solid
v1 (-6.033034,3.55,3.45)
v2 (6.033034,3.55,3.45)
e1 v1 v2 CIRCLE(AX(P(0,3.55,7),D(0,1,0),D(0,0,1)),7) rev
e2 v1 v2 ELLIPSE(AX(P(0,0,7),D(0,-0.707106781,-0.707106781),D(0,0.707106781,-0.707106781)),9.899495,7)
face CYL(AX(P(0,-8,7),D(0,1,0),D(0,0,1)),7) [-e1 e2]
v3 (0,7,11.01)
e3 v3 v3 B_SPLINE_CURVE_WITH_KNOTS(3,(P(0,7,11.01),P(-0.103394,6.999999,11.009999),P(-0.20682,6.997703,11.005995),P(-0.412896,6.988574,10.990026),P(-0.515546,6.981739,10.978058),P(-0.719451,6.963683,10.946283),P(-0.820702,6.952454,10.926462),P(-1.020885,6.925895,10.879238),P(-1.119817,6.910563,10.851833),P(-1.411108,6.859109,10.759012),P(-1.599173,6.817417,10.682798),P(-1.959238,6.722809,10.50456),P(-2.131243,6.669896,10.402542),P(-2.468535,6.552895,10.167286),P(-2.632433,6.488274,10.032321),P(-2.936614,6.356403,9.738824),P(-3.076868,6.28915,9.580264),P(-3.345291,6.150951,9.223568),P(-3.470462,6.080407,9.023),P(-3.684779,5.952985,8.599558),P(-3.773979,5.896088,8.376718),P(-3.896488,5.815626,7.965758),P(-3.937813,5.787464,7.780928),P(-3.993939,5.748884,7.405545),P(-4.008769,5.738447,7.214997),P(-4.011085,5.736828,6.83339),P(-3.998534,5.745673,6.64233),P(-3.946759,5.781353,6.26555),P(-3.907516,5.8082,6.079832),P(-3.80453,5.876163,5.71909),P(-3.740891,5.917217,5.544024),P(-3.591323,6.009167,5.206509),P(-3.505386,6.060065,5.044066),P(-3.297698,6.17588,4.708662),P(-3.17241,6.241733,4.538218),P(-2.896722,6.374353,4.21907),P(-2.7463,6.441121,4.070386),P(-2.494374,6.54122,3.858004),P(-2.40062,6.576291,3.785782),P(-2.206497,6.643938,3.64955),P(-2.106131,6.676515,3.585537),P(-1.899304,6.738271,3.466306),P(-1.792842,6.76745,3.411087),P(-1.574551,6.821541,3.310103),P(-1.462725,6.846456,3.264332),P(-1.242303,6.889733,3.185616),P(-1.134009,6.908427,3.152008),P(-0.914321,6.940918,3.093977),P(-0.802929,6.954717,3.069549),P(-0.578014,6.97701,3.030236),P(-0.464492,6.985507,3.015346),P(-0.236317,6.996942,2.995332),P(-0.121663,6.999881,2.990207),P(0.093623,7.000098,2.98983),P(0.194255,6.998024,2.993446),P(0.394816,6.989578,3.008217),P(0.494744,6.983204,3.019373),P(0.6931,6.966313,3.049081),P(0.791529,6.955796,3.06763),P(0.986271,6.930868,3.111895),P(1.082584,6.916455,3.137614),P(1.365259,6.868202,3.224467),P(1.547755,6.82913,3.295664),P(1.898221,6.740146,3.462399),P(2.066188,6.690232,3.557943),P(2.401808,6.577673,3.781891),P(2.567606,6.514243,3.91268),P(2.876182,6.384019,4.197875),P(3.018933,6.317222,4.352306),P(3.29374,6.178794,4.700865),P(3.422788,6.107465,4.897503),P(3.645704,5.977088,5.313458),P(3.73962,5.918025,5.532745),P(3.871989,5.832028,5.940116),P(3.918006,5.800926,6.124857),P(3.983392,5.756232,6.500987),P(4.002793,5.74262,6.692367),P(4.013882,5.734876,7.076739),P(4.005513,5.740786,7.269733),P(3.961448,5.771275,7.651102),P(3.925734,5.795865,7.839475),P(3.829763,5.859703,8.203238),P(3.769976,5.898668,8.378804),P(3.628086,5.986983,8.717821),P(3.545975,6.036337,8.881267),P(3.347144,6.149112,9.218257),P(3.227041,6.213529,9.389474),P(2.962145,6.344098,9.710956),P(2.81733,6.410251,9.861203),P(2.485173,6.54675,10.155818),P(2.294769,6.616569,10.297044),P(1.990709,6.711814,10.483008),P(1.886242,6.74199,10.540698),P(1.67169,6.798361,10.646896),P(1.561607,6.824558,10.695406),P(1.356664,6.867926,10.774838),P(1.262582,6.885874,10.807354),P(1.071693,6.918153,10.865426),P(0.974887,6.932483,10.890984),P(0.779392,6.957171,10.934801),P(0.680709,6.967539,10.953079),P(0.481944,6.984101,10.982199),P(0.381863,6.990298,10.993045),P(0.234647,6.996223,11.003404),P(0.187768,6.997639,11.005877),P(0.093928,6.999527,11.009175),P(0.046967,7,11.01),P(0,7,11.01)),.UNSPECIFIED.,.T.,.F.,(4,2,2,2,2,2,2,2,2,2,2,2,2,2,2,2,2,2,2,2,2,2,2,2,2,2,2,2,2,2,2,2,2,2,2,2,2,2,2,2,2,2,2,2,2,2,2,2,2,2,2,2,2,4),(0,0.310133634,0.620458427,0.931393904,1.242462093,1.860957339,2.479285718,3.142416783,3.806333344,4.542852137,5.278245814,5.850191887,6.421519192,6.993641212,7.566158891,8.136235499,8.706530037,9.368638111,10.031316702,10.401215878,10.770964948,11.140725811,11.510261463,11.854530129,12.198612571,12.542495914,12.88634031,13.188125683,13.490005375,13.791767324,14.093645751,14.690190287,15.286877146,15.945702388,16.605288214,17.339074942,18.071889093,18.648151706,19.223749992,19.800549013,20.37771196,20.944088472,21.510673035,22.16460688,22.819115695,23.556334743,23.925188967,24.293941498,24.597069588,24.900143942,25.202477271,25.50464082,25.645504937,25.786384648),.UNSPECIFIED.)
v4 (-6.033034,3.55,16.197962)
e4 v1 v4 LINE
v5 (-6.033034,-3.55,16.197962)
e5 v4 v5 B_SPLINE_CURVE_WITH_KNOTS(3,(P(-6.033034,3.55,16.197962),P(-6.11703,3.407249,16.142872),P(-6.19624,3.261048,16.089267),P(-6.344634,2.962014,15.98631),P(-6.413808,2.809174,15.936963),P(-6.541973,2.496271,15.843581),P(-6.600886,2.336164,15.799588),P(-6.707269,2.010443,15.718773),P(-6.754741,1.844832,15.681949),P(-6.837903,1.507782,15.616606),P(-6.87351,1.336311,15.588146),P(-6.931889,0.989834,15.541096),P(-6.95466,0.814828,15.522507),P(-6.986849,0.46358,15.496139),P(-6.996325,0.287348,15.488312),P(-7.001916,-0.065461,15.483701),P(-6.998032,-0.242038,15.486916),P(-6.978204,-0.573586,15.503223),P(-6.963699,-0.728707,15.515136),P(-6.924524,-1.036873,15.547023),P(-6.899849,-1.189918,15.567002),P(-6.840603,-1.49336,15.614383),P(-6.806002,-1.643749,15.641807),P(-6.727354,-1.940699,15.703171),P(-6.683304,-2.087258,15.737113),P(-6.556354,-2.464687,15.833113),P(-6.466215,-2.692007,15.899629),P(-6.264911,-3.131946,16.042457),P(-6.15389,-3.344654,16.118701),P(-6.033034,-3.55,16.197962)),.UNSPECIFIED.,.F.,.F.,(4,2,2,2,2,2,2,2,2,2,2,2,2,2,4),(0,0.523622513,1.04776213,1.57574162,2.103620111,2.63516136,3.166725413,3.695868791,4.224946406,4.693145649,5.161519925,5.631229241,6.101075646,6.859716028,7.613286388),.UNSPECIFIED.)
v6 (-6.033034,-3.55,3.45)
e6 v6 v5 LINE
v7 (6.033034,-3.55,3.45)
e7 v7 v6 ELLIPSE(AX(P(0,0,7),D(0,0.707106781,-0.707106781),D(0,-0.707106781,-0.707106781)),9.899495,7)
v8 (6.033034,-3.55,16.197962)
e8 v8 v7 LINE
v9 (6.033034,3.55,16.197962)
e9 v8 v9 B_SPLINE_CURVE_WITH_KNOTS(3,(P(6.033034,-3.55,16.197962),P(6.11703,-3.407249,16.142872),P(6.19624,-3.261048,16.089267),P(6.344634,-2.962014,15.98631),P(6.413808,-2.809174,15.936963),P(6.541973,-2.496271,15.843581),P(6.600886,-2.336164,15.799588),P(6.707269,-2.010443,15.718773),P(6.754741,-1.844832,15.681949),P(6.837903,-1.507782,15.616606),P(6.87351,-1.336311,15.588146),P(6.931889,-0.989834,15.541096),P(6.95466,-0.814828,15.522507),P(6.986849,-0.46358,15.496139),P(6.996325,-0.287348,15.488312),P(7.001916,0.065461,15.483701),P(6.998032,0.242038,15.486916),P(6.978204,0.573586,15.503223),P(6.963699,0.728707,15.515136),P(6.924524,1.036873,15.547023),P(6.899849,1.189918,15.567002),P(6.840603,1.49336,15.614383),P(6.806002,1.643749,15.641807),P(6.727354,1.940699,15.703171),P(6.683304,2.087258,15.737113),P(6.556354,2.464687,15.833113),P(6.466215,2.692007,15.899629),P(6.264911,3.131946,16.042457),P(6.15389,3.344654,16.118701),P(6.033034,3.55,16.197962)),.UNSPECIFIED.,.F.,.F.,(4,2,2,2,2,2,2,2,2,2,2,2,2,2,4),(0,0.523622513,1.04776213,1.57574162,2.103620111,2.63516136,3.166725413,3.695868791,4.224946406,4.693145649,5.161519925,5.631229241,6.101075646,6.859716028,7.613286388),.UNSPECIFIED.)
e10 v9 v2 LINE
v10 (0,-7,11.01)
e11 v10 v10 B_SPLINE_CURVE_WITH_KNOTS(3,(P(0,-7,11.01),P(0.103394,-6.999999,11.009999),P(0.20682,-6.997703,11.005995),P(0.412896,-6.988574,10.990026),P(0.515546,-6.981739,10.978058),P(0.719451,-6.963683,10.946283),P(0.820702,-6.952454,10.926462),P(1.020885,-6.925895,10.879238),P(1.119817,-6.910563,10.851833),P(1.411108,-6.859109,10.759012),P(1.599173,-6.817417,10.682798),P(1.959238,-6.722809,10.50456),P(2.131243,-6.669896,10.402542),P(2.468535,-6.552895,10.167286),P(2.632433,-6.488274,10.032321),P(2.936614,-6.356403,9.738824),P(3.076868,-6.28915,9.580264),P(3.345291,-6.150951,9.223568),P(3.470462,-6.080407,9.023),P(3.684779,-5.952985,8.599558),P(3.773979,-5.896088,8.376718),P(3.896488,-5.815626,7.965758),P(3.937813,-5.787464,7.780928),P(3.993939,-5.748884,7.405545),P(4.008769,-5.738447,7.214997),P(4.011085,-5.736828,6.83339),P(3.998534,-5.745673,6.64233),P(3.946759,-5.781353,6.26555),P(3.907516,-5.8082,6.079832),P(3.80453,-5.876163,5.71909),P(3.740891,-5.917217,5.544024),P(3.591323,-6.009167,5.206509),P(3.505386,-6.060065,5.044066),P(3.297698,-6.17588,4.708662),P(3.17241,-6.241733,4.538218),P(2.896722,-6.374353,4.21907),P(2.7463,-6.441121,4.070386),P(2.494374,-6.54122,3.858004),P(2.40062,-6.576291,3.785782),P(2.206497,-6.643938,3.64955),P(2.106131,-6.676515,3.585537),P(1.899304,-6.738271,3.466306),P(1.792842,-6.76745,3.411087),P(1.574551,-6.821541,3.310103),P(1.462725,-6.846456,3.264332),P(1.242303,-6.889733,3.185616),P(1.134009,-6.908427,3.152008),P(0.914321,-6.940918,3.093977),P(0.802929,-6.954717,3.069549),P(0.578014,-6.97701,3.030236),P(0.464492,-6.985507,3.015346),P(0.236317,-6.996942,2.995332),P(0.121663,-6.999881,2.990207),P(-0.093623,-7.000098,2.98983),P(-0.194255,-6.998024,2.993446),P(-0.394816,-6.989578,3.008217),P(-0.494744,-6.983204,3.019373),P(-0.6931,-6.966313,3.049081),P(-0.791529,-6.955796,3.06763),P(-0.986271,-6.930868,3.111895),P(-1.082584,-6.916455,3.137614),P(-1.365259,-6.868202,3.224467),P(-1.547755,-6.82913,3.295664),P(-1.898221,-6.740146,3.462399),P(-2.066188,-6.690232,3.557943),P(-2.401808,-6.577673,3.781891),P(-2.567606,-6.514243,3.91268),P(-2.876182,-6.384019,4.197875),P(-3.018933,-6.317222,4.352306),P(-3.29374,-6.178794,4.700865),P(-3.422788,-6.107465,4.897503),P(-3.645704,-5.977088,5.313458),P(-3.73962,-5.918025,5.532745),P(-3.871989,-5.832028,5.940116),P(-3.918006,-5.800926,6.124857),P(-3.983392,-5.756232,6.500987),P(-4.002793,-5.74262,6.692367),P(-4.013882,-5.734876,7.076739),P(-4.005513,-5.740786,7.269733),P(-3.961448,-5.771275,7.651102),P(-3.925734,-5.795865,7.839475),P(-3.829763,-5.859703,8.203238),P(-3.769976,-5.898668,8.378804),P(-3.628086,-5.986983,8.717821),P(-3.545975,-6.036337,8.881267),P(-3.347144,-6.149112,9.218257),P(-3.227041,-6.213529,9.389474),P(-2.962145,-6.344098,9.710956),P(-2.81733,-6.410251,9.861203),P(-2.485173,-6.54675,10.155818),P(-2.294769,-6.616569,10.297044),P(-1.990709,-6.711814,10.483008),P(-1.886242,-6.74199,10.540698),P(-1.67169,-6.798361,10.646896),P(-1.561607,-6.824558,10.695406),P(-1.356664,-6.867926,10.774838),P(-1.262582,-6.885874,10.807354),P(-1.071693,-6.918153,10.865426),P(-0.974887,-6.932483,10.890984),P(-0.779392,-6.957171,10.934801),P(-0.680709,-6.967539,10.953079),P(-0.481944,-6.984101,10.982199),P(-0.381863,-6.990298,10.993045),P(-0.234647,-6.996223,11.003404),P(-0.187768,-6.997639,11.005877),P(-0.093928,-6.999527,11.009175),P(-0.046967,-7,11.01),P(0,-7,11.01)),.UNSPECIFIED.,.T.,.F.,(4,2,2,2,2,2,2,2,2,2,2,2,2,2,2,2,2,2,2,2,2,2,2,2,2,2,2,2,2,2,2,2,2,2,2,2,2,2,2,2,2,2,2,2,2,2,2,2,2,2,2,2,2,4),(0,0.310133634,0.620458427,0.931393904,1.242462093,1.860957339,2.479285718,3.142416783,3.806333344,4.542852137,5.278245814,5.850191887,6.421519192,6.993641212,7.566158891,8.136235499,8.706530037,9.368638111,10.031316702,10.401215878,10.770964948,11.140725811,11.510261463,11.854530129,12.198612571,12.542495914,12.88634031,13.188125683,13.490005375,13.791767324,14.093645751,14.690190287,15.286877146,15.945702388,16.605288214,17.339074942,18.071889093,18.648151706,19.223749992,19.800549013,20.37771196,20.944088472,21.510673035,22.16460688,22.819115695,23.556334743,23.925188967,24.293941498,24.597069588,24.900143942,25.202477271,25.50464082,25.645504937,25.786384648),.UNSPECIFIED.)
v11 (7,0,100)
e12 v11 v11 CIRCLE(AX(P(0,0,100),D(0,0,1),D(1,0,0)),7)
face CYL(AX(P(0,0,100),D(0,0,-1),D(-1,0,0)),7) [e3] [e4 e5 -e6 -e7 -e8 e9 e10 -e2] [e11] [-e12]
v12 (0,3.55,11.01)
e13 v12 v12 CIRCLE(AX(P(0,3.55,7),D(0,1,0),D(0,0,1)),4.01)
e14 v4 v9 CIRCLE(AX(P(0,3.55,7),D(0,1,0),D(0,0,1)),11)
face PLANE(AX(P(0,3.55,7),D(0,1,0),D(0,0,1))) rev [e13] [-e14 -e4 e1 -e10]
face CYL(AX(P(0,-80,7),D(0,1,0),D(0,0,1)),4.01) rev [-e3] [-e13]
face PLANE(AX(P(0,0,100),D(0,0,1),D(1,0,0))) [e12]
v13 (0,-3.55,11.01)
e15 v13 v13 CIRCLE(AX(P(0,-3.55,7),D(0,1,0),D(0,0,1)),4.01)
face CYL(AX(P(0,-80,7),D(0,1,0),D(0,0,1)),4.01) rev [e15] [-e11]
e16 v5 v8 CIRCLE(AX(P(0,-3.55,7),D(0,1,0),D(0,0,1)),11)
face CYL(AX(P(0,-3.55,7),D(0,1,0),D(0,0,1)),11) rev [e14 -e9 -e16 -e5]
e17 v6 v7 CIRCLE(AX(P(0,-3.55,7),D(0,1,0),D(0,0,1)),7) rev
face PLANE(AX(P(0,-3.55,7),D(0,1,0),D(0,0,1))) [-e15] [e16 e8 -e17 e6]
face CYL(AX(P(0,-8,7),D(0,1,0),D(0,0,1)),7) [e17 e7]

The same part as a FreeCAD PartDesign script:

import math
import FreeCAD as App
import Part
import Sketcher
Q = App.Units.Quantity

doc = App.newDocument("Part")
body = doc.addObject("PartDesign::Body", "Body")

# Sketch on XY plane
sketch1 = body.newObject("Sketcher::SketchObject", "Sketch")
sketch1.AttachmentSupport = (doc.getObject("XY_Plane"), [""])
sketch1.MapMode = "FlatFace"
sketch1.addGeometry(Part.Circle(App.Vector(0, 0, 0), App.Vector(0, 0, 1), 7), False)
sketch1.addConstraint([
    Sketcher.Constraint("Coincident", 0, 3, -1, 1),
    Sketcher.Constraint("Diameter", 0, Q("14 mm")),
])
pad1 = body.newObject("PartDesign::Pad", "Pad")
pad1.Profile = sketch1
pad1.Length = 100

# Sketch on XZ plane
sketch2 = body.newObject("Sketcher::SketchObject", "Sketch001")
sketch2.AttachmentSupport = (doc.getObject("XZ_Plane"), [""])
sketch2.MapMode = "FlatFace"
sketch2.addGeometry([
    Part.ArcOfCircle(Part.Circle(App.Vector(0, 7, 0), App.Vector(0, 0, 1), 7), math.radians(180), math.radians(360)),
    Part.LineSegment(App.Vector(7, 7, 0), App.Vector(18, 7, 0)),
    Part.ArcOfCircle(Part.Circle(App.Vector(0, 7, 0), App.Vector(0, 0, 1), 18), math.radians(180), math.radians(360)),
    Part.LineSegment(App.Vector(-18, 7, 0), App.Vector(-7, 7, 0)),
], False)
sketch2.addConstraint([
    Sketcher.Constraint("Coincident", 0, 2, 1, 1),
    Sketcher.Constraint("Coincident", 1, 2, 2, 2),
    Sketcher.Constraint("Coincident", 2, 1, 3, 1),
    Sketcher.Constraint("Coincident", 3, 2, 0, 1),
    Sketcher.Constraint("Horizontal", 1),
    Sketcher.Constraint("Horizontal", 3),
    Sketcher.Constraint("Coincident", 2, 3, 0, 3),
    Sketcher.Constraint("Symmetric", 1, 2, 2, 1, -2),
    Sketcher.Constraint("Horizontal", 2, 3, 0, 2),
    Sketcher.Constraint("Radius", 0, Q("7 mm")),
    Sketcher.Constraint("DistanceY", -1, 1, 0, 3, Q("7 mm")),
    Sketcher.Constraint("Radius", 2, Q("17.530133 mm")),
])
pocket1 = body.newObject("PartDesign::Pocket", "Pocket")
pocket1.Profile = sketch2
pocket1.Length = 16
pocket1.Midplane = True

# Sketch on XZ plane
sketch3 = body.newObject("Sketcher::SketchObject", "Sketch002")
sketch3.AttachmentSupport = (doc.getObject("XZ_Plane"), [""])
sketch3.MapMode = "FlatFace"
sketch3.addGeometry(Part.Circle(App.Vector(0, 7, 0), App.Vector(0, 0, 1), 11), False)
sketch3.addConstraint([
    Sketcher.Constraint("PointOnObject", 0, 3, -2),
    Sketcher.Constraint("Diameter", 0, Q("22 mm")),
    Sketcher.Constraint("DistanceY", -1, 1, 0, 3, Q("7 mm")),
])
pocket2 = body.newObject("PartDesign::Pocket", "Pocket001")
pocket2.Profile = sketch3
pocket2.Length = 7.1
pocket2.Midplane = True

# Sketch on XZ plane
sketch4 = body.newObject("Sketcher::SketchObject", "Sketch003")
sketch4.AttachmentSupport = (doc.getObject("XZ_Plane"), [""])
sketch4.MapMode = "FlatFace"
sketch4.addGeometry(Part.Circle(App.Vector(0, 7, 0), App.Vector(0, 0, 1), 4), False)
sketch4.addConstraint([
    Sketcher.Constraint("PointOnObject", 0, 3, -2),
    Sketcher.Constraint("Diameter", 0, Q("8.02 mm")),
    Sketcher.Constraint("DistanceY", -1, 1, 0, 3, Q("7 mm")),
])
pocket3 = body.newObject("PartDesign::Pocket", "Pocket002")
pocket3.Profile = sketch4
pocket3.Length = 160
pocket3.Midplane = True

doc.recompute()
